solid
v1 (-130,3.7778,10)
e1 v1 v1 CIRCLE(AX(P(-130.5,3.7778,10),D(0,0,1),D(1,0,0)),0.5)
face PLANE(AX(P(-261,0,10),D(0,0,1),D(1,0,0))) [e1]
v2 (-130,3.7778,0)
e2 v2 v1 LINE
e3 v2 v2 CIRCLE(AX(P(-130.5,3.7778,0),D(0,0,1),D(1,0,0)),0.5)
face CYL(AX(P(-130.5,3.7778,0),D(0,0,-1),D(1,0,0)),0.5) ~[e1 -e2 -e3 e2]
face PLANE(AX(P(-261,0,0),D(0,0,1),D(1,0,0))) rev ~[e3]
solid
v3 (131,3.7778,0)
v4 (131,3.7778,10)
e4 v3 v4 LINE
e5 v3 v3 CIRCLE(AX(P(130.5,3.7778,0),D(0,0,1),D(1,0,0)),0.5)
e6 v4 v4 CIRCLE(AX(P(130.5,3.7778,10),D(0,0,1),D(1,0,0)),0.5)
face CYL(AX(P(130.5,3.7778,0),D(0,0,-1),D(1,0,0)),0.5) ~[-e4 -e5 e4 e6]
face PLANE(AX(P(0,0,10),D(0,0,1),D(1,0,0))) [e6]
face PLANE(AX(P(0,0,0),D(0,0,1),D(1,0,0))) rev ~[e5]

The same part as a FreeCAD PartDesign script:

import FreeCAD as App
import Part
import Sketcher
from FreeCAD import Vector

doc = App.newDocument("Part")
body = doc.addObject("PartDesign::Body", "Body")
body.AllowCompound = True

# Sketch on XY plane
sketch1 = doc.addObject("Sketcher::SketchObject", "Sketch")
body.addObject(sketch1)
sketch1.AttachmentSupport = (doc.XY_Plane, [""])
sketch1.MapMode = "FlatFace"
sketch1.addGeometry(Part.Circle(Vector(130.5, 3.8, 0), Vector(0, 0, 1), 0.5), False)
sketch1.addConstraint(Sketcher.Constraint("Diameter", 0, 1.0))
sketch1.addConstraint(Sketcher.Constraint("DistanceX", -1, 1, 0, 3, 130.5))
sketch1.addConstraint(Sketcher.Constraint("DistanceY", -1, 1, 0, 3, 3.7778))
pad1 = doc.addObject("PartDesign::Pad", "Pad")
body.addObject(pad1)
pad1.Profile = sketch1
pad1.Length = 10
doc.recompute()

linearpattern = doc.addObject("PartDesign::LinearPattern", "LinearPattern")
body.addObject(linearpattern)
linearpattern.Originals = [pad1]
linearpattern.Direction = (doc.X_Axis, [""])
linearpattern.Mode = "offset"
linearpattern.Offset = 261
linearpattern.Occurrences = 2
linearpattern.Reversed = True
body.Tip = linearpattern

doc.recompute()
